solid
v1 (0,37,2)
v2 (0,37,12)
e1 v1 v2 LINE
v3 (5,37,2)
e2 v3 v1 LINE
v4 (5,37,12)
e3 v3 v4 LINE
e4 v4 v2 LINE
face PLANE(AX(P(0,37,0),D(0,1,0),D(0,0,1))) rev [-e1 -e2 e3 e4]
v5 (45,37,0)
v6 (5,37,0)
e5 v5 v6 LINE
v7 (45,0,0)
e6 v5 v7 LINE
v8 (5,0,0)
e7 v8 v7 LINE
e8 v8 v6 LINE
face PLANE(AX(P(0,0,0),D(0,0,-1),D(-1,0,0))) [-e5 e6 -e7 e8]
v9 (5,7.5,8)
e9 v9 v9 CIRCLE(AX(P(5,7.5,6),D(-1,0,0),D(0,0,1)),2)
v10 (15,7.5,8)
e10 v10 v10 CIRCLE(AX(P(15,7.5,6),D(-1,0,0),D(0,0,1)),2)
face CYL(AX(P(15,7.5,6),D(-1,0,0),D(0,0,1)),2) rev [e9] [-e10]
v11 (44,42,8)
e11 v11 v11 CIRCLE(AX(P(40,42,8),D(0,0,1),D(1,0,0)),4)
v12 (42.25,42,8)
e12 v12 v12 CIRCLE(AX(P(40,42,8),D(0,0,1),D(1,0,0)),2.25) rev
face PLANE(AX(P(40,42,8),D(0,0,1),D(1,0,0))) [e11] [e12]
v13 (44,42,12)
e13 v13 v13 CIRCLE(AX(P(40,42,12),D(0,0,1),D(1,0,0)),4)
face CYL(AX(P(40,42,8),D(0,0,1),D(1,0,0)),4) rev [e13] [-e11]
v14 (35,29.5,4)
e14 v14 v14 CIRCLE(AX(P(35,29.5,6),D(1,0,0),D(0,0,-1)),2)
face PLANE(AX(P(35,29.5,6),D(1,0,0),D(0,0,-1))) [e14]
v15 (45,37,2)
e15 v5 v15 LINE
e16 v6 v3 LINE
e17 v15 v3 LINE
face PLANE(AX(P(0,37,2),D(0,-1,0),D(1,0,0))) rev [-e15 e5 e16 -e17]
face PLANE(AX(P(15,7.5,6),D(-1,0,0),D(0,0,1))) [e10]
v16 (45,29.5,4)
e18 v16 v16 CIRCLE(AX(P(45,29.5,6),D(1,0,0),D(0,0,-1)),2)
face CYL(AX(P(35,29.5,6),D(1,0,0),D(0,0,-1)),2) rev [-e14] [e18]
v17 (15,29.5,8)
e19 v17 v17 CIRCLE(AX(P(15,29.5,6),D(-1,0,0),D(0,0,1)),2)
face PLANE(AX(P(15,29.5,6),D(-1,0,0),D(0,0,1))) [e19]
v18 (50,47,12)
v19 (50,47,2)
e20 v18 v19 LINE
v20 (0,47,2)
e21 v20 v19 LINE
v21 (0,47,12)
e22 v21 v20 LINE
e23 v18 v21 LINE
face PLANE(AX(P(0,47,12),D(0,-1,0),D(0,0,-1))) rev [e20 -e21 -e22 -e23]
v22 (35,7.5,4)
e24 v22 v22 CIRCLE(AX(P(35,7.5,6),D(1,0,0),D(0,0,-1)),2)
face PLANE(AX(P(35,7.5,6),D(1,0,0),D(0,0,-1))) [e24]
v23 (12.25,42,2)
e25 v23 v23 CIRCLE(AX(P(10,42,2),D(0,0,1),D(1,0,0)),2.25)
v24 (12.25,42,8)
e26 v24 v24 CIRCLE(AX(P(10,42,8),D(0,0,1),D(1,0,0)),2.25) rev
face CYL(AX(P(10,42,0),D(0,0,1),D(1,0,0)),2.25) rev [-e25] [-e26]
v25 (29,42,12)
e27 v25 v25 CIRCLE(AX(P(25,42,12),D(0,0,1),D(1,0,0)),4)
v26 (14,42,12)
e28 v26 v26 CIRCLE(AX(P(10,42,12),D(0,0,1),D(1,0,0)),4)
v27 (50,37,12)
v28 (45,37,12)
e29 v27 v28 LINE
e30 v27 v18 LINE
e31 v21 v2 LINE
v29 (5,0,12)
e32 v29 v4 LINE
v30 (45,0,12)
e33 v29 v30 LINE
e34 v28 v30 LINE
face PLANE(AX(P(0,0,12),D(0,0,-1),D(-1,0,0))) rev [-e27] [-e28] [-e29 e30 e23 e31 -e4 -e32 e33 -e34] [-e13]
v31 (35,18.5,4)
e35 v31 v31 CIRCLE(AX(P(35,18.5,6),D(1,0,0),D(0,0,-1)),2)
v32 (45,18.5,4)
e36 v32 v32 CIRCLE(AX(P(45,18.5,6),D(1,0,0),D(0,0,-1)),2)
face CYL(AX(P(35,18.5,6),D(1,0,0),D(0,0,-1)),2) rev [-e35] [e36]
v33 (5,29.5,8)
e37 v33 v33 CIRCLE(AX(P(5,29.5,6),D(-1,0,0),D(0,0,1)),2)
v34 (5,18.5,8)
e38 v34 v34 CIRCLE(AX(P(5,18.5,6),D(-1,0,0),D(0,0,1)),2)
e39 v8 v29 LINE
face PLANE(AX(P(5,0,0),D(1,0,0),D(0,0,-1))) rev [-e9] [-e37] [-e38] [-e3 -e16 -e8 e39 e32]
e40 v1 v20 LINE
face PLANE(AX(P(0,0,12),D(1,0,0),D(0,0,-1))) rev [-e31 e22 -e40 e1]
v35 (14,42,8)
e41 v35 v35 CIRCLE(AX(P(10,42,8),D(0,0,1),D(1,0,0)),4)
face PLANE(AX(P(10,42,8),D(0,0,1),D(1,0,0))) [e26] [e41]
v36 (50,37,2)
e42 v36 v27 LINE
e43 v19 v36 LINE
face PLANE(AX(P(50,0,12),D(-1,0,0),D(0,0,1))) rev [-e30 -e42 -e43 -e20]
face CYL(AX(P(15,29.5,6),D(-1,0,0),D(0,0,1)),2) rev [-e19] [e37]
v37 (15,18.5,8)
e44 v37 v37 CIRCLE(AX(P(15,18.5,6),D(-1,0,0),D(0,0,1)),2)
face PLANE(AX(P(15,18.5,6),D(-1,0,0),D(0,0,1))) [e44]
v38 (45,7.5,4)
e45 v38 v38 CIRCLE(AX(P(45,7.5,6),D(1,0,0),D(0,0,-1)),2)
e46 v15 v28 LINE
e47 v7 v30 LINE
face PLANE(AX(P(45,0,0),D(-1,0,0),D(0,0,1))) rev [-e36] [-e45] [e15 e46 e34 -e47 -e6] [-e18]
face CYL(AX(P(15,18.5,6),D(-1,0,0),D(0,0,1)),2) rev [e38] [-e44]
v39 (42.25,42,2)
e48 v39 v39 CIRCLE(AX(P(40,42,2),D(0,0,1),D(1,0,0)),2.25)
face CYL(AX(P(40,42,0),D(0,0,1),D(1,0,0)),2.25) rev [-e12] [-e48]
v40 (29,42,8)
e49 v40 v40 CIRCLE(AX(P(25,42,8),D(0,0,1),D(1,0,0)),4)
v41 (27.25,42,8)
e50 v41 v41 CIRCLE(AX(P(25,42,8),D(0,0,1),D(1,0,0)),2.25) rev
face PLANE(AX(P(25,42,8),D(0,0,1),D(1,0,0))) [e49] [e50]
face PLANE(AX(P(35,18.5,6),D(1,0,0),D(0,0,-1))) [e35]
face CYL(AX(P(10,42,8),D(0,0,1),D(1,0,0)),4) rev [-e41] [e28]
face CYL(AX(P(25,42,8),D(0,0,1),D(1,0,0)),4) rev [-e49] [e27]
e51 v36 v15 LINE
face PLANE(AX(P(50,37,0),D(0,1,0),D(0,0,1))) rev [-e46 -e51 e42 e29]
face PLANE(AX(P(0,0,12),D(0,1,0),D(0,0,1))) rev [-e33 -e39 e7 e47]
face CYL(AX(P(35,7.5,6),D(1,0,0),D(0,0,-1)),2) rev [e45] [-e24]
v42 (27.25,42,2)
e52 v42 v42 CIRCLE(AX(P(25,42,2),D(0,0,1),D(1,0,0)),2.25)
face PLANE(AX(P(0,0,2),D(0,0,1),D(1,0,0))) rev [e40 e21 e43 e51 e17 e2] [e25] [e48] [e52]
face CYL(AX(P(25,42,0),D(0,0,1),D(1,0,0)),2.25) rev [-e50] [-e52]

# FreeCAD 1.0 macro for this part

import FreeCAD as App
import Part
import Sketcher
from FreeCAD import Vector
Q = App.Units.Quantity


def add_polygon(sketch, points):
    """Adds a closed chain of lines whose ends are joined by coincident constraints."""
    first, n = sketch.GeometryCount, len(points)
    for a, b in zip(points, points[1:] + points[:1]):
        sketch.addGeometry(Part.LineSegment(App.Vector(*a, 0), App.Vector(*b, 0)), False)
    for i in range(n):
        sketch.addConstraint(Sketcher.Constraint("Coincident", first + i, 2, first + (i + 1) % n, 1))

doc = App.newDocument("Part")
body = doc.addObject("PartDesign::Body", "Body")

sketch1 = doc.addObject("Sketcher::SketchObject", "Sketch")
body.addObject(sketch1)
sketch1.AttachmentSupport = (doc.XY_Plane, [""])
sketch1.MapMode = "FlatFace"
add_polygon(sketch1, [(0, 47), (0, 0), (50, 0), (50, 47)])
sketch1.addConstraint(Sketcher.Constraint("Vertical", 0))
sketch1.addConstraint(Sketcher.Constraint("Horizontal", 1))
sketch1.addConstraint(Sketcher.Constraint("Vertical", 2))
sketch1.addConstraint(Sketcher.Constraint("Horizontal", 3))
sketch1.addConstraint(Sketcher.Constraint("Coincident", 0, 2, -1, 1))
sketch1.addConstraint(Sketcher.Constraint("DistanceX", 1, 1, 1, 2, Q("50 mm")))
sketch1.addConstraint(Sketcher.Constraint("DistanceY", 0, 2, 0, 1, Q("47 mm")))
pad1 = doc.addObject("PartDesign::Pad", "Pad")
body.addObject(pad1)
pad1.Profile = sketch1
pad1.Length = 12

sketch2 = doc.addObject("Sketcher::SketchObject", "Sketch001")
body.addObject(sketch2)
sketch2.AttachmentSupport = (doc.XY_Plane, [""])
sketch2.MapMode = "FlatFace"
add_polygon(sketch2, [(50, 47), (50, 37), (0, 37), (0, 47)])
sketch2.addConstraint(Sketcher.Constraint("Vertical", 0))
sketch2.addConstraint(Sketcher.Constraint("Horizontal", 1))
sketch2.addConstraint(Sketcher.Constraint("Vertical", 2))
sketch2.addConstraint(Sketcher.Constraint("Horizontal", 3))
sketch2.addConstraint(Sketcher.Constraint("PointOnObject", 1, 2, -2))
sketch2.addConstraint(Sketcher.Constraint("DistanceX", 1, 2, 1, 1, Q("50 mm")))
sketch2.addConstraint(Sketcher.Constraint("DistanceY", 0, 2, 0, 1, Q("10 mm")))
sketch2.addConstraint(Sketcher.Constraint("DistanceY", -1, 1, 0, 2, Q("37 mm")))
pocket1 = doc.addObject("PartDesign::Pocket", "Pocket")
body.addObject(pocket1)
pocket1.Profile = sketch2
pocket1.Length = 2
pocket1.Reversed = True

sketch3 = doc.addObject("Sketcher::SketchObject", "Sketch002")
body.addObject(sketch3)
sketch3.AttachmentSupport = (doc.XY_Plane, [""])
sketch3.MapMode = "FlatFace"
sketch3.AttachmentOffset = App.Placement(Vector(0, 0, 12), App.Rotation())
sketch3.addGeometry(Part.Circle(Vector(25, 42, 0), Vector(0, 0, 1), 2.2), False)
sketch3.addGeometry(Part.Circle(Vector(40, 42, 0), Vector(0, 0, 1), 2.2), False)
sketch3.addGeometry(Part.Circle(Vector(10, 42, 0), Vector(0, 0, 1), 2.2), False)
sketch3.addConstraint(Sketcher.Constraint("Equal", 0, 1))
sketch3.addConstraint(Sketcher.Constraint("Equal", 1, 2))
sketch3.addConstraint(Sketcher.Constraint("Horizontal", 0, 3, 1, 3))
sketch3.addConstraint(Sketcher.Constraint("Horizontal", 1, 3, 2, 3))
sketch3.addConstraint(Sketcher.Constraint("Diameter", 0, Q("4.5 mm")))
sketch3.addConstraint(Sketcher.Constraint("DistanceX", -1, 1, 0, 3, Q("25 mm")))
sketch3.addConstraint(Sketcher.Constraint("DistanceY", -1, 1, 0, 3, Q("42 mm")))
sketch3.addConstraint(Sketcher.Constraint("DistanceX", -1, 1, 1, 3, Q("40 mm")))
sketch3.addConstraint(Sketcher.Constraint("DistanceX", -1, 1, 2, 3, Q("10 mm")))
pocket2 = doc.addObject("PartDesign::Pocket", "Pocket001")
body.addObject(pocket2)
pocket2.Profile = sketch3
pocket2.Type = "ThroughAll"

sketch4 = doc.addObject("Sketcher::SketchObject", "Sketch003")
body.addObject(sketch4)
sketch4.AttachmentSupport = (doc.XY_Plane, [""])
sketch4.MapMode = "FlatFace"
sketch4.AttachmentOffset = App.Placement(Vector(0, 0, 12), App.Rotation())
add_polygon(sketch4, [(0, 37), (0, 0), (5, 0), (5, 37)])
add_polygon(sketch4, [(45, 37), (45, 0), (50, 0), (50, 37)])
sketch4.addConstraint(Sketcher.Constraint("Vertical", 0))
sketch4.addConstraint(Sketcher.Constraint("Horizontal", 1))
sketch4.addConstraint(Sketcher.Constraint("Vertical", 2))
sketch4.addConstraint(Sketcher.Constraint("Horizontal", 3))
sketch4.addConstraint(Sketcher.Constraint("Vertical", 4))
sketch4.addConstraint(Sketcher.Constraint("Horizontal", 5))
sketch4.addConstraint(Sketcher.Constraint("Vertical", 6))
sketch4.addConstraint(Sketcher.Constraint("Horizontal", 7))
sketch4.addConstraint(Sketcher.Constraint("Coincident", 0, 2, -1, 1))
sketch4.addConstraint(Sketcher.Constraint("PointOnObject", 4, 2, -1))
sketch4.addConstraint(Sketcher.Constraint("Horizontal", 3, 2, 6, 2))
sketch4.addConstraint(Sketcher.Constraint("Equal", 3, 5))
sketch4.addConstraint(Sketcher.Constraint("DistanceX", 1, 1, 1, 2, Q("5 mm")))
sketch4.addConstraint(Sketcher.Constraint("DistanceY", 0, 2, 0, 1, Q("37 mm")))
sketch4.addConstraint(Sketcher.Constraint("DistanceX", -1, 1, 4, 2, Q("45 mm")))
pocket3 = doc.addObject("PartDesign::Pocket", "Pocket002")
body.addObject(pocket3)
pocket3.Profile = sketch4
pocket3.Type = "ThroughAll"

sketch5 = doc.addObject("Sketcher::SketchObject", "Sketch004")
body.addObject(sketch5)
sketch5.AttachmentSupport = (doc.YZ_Plane, [""])
sketch5.MapMode = "FlatFace"
sketch5.AttachmentOffset = App.Placement(Vector(0, 0, 45), App.Rotation())
sketch5.addGeometry(Part.Circle(Vector(29.5, 6, 0), Vector(0, 0, 1), 2), False)
sketch5.addGeometry(Part.Circle(Vector(18.5, 6, 0), Vector(0, 0, 1), 2), False)
sketch5.addGeometry(Part.Circle(Vector(7.5, 6, 0), Vector(0, 0, 1), 2), False)
sketch5.addConstraint(Sketcher.Constraint("Equal", 0, 1))
sketch5.addConstraint(Sketcher.Constraint("Equal", 1, 2))
sketch5.addConstraint(Sketcher.Constraint("Horizontal", 0, 3, 1, 3))
sketch5.addConstraint(Sketcher.Constraint("Horizontal", 1, 3, 2, 3))
sketch5.addConstraint(Sketcher.Constraint("Diameter", 0, Q("4 mm")))
sketch5.addConstraint(Sketcher.Constraint("DistanceY", -1, 1, 0, 3, Q("6 mm")))
sketch5.addConstraint(Sketcher.Constraint("DistanceX", 1, 3, 0, 3, Q("11 mm")))
sketch5.addConstraint(Sketcher.Constraint("DistanceX", 2, 3, 1, 3, Q("11 mm")))
sketch5.addConstraint(Sketcher.Constraint("DistanceX", -1, 1, 0, 3, Q("29.5 mm")))
pocket4 = doc.addObject("PartDesign::Pocket", "Pocket003")
body.addObject(pocket4)
pocket4.Profile = sketch5
pocket4.Length = 10

sketch6 = doc.addObject("Sketcher::SketchObject", "Sketch005")
body.addObject(sketch6)
sketch6.AttachmentSupport = (doc.YZ_Plane, [""])
sketch6.MapMode = "FlatFace"
sketch6.AttachmentOffset = App.Placement(Vector(0, 0, 15), App.Rotation())
sketch6.addGeometry(Part.Circle(Vector(29.5, 6, 0), Vector(0, 0, 1), 2), False)
sketch6.addGeometry(Part.Circle(Vector(18.5, 6, 0), Vector(0, 0, 1), 2), False)
sketch6.addGeometry(Part.Circle(Vector(7.5, 6, 0), Vector(0, 0, 1), 2), False)
sketch6.addConstraint(Sketcher.Constraint("Equal", 0, 1))
sketch6.addConstraint(Sketcher.Constraint("Equal", 1, 2))
sketch6.addConstraint(Sketcher.Constraint("Horizontal", 0, 3, 1, 3))
sketch6.addConstraint(Sketcher.Constraint("Horizontal", 1, 3, 2, 3))
sketch6.addConstraint(Sketcher.Constraint("Diameter", 0, Q("4 mm")))
sketch6.addConstraint(Sketcher.Constraint("DistanceY", -1, 1, 0, 3, Q("6 mm")))
sketch6.addConstraint(Sketcher.Constraint("DistanceX", 1, 3, 0, 3, Q("11 mm")))
sketch6.addConstraint(Sketcher.Constraint("DistanceX", 2, 3, 1, 3, Q("11 mm")))
sketch6.addConstraint(Sketcher.Constraint("DistanceX", -1, 1, 0, 3, Q("29.5 mm")))
pocket5 = doc.addObject("PartDesign::Pocket", "Pocket004")
body.addObject(pocket5)
pocket5.Profile = sketch6
pocket5.Length = 10

sketch7 = doc.addObject("Sketcher::SketchObject", "Sketch006")
body.addObject(sketch7)
sketch7.AttachmentSupport = (doc.XY_Plane, [""])
sketch7.MapMode = "FlatFace"
sketch7.AttachmentOffset = App.Placement(Vector(0, 0, 12), App.Rotation())
sketch7.addGeometry(Part.Circle(Vector(10, 42, 0), Vector(0, 0, 1), 4), False)
sketch7.addGeometry(Part.Circle(Vector(25, 42, 0), Vector(0, 0, 1), 4), False)
sketch7.addGeometry(Part.Circle(Vector(40, 42, 0), Vector(0, 0, 1), 4), False)
sketch7.addConstraint(Sketcher.Constraint("Equal", 0, 1))
sketch7.addConstraint(Sketcher.Constraint("Equal", 1, 2))
sketch7.addConstraint(Sketcher.Constraint("Horizontal", 0, 3, 1, 3))
sketch7.addConstraint(Sketcher.Constraint("Horizontal", 1, 3, 2, 3))
sketch7.addConstraint(Sketcher.Constraint("Diameter", 0, Q("8 mm")))
sketch7.addConstraint(Sketcher.Constraint("DistanceX", -1, 1, 0, 3, Q("10 mm")))
sketch7.addConstraint(Sketcher.Constraint("DistanceY", -1, 1, 0, 3, Q("42 mm")))
sketch7.addConstraint(Sketcher.Constraint("DistanceX", -1, 1, 1, 3, Q("25 mm")))
sketch7.addConstraint(Sketcher.Constraint("DistanceX", -1, 1, 2, 3, Q("40 mm")))
pocket6 = doc.addObject("PartDesign::Pocket", "Pocket005")
body.addObject(pocket6)
pocket6.Profile = sketch7
pocket6.Length = 4

doc.recompute()
